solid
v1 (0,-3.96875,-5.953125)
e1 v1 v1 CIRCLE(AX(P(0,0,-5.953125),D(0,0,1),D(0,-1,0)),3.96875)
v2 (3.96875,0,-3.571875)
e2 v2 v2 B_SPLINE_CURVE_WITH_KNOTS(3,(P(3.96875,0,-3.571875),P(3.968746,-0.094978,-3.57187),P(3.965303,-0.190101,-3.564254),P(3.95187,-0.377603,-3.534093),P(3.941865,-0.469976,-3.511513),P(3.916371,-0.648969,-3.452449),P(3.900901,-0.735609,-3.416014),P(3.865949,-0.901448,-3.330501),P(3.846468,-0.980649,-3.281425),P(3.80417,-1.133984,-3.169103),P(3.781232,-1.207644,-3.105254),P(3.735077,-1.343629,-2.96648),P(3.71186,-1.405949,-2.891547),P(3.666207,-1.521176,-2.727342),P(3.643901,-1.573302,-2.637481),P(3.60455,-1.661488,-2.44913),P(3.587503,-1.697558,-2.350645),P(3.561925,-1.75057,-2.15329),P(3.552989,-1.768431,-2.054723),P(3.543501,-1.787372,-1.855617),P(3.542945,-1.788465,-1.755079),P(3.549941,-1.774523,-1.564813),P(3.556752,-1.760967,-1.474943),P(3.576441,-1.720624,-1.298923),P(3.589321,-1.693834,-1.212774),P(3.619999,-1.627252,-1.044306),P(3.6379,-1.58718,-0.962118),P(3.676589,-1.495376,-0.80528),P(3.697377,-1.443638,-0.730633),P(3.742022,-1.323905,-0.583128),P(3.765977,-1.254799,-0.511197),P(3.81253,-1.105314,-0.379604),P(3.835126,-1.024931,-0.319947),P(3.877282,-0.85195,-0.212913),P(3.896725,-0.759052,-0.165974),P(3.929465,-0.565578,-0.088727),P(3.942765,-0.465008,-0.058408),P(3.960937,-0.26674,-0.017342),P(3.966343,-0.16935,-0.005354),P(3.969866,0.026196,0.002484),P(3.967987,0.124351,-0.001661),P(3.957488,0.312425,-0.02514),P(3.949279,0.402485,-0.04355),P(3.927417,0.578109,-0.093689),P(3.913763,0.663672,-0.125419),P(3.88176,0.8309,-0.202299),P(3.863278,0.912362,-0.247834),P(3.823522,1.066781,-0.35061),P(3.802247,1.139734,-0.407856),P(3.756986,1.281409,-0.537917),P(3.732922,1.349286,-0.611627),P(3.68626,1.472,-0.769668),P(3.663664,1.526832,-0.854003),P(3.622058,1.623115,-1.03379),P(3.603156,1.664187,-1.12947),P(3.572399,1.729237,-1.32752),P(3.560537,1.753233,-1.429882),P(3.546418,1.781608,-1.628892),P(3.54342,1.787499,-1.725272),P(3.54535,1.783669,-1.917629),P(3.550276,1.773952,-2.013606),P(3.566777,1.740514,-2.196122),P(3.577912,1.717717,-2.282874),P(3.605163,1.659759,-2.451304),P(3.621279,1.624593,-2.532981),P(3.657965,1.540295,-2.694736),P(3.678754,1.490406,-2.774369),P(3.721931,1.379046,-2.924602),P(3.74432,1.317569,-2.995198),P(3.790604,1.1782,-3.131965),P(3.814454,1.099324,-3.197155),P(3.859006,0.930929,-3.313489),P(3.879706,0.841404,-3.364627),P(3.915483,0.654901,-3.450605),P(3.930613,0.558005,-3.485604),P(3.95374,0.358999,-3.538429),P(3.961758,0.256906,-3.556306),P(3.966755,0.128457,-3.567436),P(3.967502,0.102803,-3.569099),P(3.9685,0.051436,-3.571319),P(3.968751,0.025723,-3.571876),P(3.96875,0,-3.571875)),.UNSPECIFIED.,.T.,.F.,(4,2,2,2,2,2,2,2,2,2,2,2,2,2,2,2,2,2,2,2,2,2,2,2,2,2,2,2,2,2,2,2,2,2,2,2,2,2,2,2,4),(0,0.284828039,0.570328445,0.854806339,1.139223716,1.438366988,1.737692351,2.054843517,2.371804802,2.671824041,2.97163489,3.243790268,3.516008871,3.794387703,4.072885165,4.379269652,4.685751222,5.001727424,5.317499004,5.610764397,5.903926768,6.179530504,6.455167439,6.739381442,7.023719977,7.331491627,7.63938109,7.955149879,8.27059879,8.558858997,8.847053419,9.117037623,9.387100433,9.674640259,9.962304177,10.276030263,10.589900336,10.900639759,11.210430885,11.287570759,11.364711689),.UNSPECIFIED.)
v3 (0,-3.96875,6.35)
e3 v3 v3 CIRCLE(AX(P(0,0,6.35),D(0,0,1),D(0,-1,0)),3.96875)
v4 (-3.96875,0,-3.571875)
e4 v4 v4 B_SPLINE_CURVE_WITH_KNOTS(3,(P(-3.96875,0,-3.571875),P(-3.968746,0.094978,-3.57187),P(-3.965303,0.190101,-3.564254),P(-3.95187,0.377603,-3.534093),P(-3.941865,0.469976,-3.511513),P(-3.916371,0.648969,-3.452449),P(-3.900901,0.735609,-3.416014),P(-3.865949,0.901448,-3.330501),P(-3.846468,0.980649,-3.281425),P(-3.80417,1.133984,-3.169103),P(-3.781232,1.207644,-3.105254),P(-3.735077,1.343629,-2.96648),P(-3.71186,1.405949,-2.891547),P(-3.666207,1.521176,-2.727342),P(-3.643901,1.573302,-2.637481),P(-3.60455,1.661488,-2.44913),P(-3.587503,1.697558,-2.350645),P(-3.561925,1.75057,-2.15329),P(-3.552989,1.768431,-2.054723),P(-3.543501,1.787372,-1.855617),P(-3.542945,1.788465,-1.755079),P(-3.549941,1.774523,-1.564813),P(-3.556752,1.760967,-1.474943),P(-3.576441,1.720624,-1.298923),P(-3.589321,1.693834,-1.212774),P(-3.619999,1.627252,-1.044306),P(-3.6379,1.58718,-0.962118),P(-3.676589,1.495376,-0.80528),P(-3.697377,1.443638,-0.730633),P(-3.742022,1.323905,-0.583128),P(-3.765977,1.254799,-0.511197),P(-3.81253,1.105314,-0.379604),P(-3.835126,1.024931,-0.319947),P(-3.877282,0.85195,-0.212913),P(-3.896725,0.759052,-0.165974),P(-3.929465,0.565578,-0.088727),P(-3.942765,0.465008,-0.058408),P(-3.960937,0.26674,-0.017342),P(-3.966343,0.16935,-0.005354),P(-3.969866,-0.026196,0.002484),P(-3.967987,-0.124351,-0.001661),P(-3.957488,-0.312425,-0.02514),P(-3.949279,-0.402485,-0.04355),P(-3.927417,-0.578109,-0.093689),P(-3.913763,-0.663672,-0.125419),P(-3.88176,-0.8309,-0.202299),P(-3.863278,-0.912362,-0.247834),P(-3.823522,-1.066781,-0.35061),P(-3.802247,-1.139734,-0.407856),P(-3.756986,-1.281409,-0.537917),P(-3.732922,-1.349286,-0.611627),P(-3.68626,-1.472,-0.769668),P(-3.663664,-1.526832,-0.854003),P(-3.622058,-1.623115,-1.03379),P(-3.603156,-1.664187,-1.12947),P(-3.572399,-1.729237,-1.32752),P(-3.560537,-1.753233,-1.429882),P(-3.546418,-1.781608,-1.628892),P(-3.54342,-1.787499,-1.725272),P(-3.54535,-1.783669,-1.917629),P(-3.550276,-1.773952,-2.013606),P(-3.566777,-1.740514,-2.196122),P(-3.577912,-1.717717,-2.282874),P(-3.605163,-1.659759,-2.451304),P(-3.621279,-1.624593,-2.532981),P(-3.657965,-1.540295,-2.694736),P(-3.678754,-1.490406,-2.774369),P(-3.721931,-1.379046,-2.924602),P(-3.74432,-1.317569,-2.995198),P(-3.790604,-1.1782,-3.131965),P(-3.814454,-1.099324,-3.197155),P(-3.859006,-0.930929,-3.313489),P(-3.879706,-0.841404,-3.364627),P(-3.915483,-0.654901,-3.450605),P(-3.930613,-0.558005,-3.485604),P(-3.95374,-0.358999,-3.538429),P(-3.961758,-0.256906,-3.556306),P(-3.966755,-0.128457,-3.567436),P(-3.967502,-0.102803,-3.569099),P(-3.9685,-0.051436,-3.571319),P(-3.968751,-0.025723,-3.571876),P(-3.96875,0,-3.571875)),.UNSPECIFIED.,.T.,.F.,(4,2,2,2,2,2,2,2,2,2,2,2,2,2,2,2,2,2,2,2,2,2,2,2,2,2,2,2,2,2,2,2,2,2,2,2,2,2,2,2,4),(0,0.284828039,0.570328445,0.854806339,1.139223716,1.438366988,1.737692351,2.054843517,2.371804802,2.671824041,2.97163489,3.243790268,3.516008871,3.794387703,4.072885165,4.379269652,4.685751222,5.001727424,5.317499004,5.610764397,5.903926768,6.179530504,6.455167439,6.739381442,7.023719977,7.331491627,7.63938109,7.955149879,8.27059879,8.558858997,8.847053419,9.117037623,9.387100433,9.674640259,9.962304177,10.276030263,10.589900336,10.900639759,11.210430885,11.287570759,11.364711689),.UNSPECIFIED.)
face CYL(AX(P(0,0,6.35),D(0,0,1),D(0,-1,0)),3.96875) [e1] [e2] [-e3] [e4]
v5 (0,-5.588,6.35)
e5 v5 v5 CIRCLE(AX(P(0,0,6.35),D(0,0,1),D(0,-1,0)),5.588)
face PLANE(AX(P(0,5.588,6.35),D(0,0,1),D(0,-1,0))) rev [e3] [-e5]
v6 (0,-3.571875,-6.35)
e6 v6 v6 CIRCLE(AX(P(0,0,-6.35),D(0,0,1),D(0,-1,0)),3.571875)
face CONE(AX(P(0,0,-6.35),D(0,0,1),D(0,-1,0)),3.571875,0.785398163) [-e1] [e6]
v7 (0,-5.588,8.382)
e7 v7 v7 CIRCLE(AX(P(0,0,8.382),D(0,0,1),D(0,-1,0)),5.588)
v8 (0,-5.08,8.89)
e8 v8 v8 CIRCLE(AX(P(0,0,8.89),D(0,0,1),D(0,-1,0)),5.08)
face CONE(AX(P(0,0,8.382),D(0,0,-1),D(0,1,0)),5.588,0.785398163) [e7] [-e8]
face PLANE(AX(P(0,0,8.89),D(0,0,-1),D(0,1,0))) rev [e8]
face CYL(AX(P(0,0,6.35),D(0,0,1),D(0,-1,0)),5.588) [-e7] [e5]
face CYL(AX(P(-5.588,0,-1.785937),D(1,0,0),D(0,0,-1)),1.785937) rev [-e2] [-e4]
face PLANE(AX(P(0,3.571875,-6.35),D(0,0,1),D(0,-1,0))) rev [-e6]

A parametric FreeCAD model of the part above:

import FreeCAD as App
import Part
import Sketcher
from FreeCAD import Vector
Q = App.Units.Quantity


def add_polygon(sketch, points):
    """Adds a closed chain of lines whose ends are joined by coincident constraints."""
    first, n = sketch.GeometryCount, len(points)
    for a, b in zip(points, points[1:] + points[:1]):
        sketch.addGeometry(Part.LineSegment(App.Vector(*a, 0), App.Vector(*b, 0)), False)
    for i in range(n):
        sketch.addConstraint(Sketcher.Constraint("Coincident", first + i, 2, first + (i + 1) % n, 1))

doc = App.newDocument("Part")
params = doc.addObject("Spreadsheet::Sheet", "Params")
for row, (alias, value) in enumerate([
    ("sketch1_width", "0.2 in"),
    ("sketch1_height", "0.6 in"),
    ("sketch1_height2", "0.08 in"),
    ("sketch1_width2", "0.140625 in"),
    ("sketch1_height3", "0.484375 in"),
    ("revolution_angle", "360 deg"),
    ("sketch2_diameter", "0.140625 in"),
], start=1):
    params.set(f"A{row}", alias)
    params.set(f"B{row}", "=" + value)
    params.setAlias(f"B{row}", alias)

body = doc.addObject("PartDesign::Body", "Body")

sketch1 = body.newObject("Sketcher::SketchObject", "Sketch")
sketch1.AttachmentSupport = (doc.getObject("YZ_Plane"), [""])
sketch1.MapMode = "FlatFace"
add_polygon(sketch1, [(0, -6.3), (3.6, -6.3), (4, -6), (4, 6.3), (5.6, 6.3), (5.6, 8.4), (5.1, 8.9), (0, 8.9)])
sketch1.addConstraint([
    Sketcher.Constraint("Horizontal", 0),
    Sketcher.Constraint("Vertical", 2),
    Sketcher.Constraint("Horizontal", 3),
    Sketcher.Constraint("Vertical", 4),
    Sketcher.Constraint("Horizontal", 6),
    Sketcher.Constraint("Vertical", 7),
    Sketcher.Constraint("PointOnObject", 6, 2, -2),
    Sketcher.Constraint("Perpendicular", 1, 5),
    Sketcher.Constraint("DistanceX", 6, 2, 6, 1, Q("0.2 in")),
    Sketcher.Constraint("DistanceY", 7, 2, 7, 1, Q("0.6 in")),
    Sketcher.Constraint("Angle", 1, Q("45 deg")),
    Sketcher.Constraint("DistanceY", 4, 1, 4, 2, Q("0.08 in")),
    Sketcher.Constraint("DistanceY", 0, 2, 2, 2, Q("0.5 in")),
    Sketcher.Constraint("DistanceX", 0, 1, 0, 2, Q("0.140625 in")),
    Sketcher.Constraint("DistanceY", 2, 1, 2, 2, Q("0.484375 in")),
    Sketcher.Constraint("DistanceY", 0, 2, -1, 1, Q("0.25 in")),
])
sketch1.setExpression("Constraints[16]", "Params.sketch1_width")
sketch1.setExpression("Constraints[17]", "Params.sketch1_height")
sketch1.setExpression("Constraints[19]", "Params.sketch1_height2")
sketch1.setExpression("Constraints[21]", "Params.sketch1_width2")
sketch1.setExpression("Constraints[22]", "Params.sketch1_height3")
revolution = body.newObject("PartDesign::Revolution", "Revolution")
revolution.Profile = sketch1
revolution.ReferenceAxis = (sketch1, ["V_Axis"])
revolution.setExpression("Angle", "Params.revolution_angle")

sketch2 = body.newObject("Sketcher::SketchObject", "Sketch001")
sketch2.AttachmentSupport = (doc.getObject("YZ_Plane"), [""])
sketch2.MapMode = "FlatFace"
sketch2.addGeometry(Part.Circle(Vector(0, -1.8, 0), Vector(0, 0, 1), 1.8), False)
sketch2.addConstraint([
    Sketcher.Constraint("PointOnObject", 0, 3, -2),
    Sketcher.Constraint("Diameter", 0, Q("0.140625 in")),
    Sketcher.Constraint("DistanceY", 0, 3, -1, 1, 1.785937),
])
sketch2.setExpression("Constraints[1]", "Params.sketch2_diameter")
pocket1 = body.newObject("PartDesign::Pocket", "Pocket")
pocket1.Profile = sketch2
pocket1.Type = "ThroughAll"
pocket1.Midplane = True

doc.recompute()
